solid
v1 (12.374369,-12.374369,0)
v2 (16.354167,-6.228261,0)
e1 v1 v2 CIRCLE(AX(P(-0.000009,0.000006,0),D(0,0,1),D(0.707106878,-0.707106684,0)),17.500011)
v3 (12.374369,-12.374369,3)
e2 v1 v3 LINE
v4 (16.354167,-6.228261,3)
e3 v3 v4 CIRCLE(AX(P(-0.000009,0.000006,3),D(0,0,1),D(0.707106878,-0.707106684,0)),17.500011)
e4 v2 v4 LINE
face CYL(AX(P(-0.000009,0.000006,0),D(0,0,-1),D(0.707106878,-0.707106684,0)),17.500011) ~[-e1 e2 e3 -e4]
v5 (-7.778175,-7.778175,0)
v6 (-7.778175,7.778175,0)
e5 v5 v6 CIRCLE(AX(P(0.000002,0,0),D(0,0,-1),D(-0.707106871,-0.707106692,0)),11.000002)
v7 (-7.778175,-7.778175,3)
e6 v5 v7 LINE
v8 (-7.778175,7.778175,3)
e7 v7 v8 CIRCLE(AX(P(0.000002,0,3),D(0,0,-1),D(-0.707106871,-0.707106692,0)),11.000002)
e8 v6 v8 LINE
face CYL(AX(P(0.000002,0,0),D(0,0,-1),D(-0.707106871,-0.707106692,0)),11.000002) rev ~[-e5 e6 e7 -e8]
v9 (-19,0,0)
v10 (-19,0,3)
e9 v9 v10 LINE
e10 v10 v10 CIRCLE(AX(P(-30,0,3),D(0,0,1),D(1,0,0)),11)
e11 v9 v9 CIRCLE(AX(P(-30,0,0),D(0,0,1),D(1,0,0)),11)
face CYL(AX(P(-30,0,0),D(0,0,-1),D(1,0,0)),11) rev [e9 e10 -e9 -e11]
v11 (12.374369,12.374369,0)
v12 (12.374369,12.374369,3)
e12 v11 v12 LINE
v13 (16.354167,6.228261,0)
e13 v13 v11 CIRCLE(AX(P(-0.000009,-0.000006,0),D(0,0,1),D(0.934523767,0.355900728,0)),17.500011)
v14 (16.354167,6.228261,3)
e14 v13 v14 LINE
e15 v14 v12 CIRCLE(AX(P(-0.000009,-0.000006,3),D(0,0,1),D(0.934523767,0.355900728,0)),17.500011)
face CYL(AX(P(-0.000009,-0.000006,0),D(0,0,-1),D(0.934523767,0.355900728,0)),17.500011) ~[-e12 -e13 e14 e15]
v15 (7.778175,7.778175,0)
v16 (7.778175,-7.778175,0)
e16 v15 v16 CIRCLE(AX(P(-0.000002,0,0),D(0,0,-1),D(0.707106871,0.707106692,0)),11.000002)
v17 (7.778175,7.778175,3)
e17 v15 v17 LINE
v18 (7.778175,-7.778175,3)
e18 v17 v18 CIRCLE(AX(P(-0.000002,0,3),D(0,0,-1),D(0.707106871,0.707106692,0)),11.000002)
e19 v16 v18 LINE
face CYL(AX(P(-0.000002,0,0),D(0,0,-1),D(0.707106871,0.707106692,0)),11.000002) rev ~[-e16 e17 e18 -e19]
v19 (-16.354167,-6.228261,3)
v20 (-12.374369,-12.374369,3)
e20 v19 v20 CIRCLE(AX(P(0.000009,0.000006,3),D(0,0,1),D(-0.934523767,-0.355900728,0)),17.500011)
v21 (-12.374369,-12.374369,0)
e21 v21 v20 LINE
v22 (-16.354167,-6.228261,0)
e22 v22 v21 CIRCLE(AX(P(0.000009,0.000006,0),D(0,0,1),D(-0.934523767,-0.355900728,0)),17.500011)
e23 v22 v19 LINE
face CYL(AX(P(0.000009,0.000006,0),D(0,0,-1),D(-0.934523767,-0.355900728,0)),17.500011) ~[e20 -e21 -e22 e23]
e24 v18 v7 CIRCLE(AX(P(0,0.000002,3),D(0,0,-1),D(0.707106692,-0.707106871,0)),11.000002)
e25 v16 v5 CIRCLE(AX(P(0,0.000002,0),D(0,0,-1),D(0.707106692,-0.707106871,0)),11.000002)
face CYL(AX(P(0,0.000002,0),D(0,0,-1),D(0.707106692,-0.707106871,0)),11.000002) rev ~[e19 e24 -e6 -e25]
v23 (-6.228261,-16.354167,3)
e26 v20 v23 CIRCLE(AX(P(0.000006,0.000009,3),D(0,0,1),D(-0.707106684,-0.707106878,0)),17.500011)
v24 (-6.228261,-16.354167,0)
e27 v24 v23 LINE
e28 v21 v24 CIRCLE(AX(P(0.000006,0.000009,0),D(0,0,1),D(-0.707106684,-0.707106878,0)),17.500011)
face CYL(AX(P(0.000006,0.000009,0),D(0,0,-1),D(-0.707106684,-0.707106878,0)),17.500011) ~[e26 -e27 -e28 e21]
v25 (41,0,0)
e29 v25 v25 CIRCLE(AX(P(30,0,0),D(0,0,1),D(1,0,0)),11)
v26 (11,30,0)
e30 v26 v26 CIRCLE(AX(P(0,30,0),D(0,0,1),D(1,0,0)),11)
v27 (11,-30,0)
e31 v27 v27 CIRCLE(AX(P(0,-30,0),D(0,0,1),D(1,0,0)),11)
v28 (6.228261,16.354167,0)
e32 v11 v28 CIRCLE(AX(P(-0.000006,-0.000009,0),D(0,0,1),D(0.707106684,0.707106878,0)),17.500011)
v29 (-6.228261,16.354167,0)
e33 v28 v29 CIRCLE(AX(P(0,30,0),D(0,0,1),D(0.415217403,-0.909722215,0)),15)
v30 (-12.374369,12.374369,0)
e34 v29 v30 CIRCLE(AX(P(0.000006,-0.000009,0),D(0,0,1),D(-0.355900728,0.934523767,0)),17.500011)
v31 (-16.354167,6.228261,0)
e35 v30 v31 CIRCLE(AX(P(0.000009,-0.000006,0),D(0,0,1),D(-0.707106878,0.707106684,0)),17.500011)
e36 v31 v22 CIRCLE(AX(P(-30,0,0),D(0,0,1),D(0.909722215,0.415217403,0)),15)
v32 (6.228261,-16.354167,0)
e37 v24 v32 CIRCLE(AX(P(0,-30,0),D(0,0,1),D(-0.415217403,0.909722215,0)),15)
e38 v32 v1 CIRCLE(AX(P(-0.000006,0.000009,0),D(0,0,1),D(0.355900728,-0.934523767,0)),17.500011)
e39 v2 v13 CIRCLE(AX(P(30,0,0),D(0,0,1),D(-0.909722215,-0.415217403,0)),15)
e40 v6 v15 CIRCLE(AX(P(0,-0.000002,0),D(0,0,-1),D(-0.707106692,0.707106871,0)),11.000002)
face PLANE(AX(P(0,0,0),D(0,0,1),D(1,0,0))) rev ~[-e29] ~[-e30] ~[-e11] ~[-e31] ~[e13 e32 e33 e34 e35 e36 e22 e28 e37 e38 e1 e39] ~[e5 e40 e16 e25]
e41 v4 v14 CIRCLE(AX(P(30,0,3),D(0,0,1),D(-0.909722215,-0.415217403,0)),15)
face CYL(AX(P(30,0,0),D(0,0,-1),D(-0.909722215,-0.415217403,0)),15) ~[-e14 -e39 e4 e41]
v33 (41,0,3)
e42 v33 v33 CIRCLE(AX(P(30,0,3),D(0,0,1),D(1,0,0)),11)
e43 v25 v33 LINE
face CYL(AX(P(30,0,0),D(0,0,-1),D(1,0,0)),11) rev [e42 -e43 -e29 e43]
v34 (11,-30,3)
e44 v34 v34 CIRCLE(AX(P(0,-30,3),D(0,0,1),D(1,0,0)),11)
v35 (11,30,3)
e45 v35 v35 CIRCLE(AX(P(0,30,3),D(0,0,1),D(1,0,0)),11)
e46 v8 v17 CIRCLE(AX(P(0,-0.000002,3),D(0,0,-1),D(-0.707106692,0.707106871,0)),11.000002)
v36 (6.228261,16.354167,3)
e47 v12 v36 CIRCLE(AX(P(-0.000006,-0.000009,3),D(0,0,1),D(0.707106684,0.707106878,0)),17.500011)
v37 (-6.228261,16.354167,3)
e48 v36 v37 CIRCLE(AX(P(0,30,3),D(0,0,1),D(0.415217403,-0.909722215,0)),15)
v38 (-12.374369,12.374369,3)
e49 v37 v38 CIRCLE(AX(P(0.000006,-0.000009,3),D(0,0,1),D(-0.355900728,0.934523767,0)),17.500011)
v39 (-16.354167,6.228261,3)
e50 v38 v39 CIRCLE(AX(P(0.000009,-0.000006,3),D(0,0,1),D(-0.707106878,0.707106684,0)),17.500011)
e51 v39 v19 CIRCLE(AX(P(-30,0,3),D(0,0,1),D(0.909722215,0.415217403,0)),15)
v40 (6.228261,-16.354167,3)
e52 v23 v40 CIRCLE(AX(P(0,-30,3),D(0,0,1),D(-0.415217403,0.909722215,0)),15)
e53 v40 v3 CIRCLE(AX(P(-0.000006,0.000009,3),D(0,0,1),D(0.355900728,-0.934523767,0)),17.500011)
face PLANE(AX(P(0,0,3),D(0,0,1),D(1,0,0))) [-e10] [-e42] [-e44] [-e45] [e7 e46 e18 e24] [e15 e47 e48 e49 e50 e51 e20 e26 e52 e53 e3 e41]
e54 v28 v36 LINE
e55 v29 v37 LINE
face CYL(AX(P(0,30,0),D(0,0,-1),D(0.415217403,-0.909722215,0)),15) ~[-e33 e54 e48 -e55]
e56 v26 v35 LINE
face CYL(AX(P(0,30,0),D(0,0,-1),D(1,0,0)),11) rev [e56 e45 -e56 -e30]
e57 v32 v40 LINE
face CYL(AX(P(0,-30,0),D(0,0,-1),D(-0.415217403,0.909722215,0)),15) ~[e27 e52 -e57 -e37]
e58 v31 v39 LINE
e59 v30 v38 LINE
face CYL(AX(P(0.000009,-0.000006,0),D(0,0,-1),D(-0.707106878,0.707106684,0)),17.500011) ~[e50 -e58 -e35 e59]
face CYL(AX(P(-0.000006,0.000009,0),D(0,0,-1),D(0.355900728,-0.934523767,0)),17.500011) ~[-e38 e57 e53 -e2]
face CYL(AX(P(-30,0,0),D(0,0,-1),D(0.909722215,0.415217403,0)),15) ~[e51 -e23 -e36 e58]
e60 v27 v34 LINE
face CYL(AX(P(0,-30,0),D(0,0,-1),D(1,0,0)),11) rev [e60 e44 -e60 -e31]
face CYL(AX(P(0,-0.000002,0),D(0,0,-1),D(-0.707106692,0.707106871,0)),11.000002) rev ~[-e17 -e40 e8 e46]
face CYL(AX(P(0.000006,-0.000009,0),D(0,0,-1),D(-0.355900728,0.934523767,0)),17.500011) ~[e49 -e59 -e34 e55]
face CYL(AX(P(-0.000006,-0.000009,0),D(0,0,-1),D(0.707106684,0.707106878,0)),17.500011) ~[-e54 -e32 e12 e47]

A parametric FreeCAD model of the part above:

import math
import FreeCAD as App
import Part
import Sketcher

doc = App.newDocument("Part")
body = doc.addObject("PartDesign::Body", "Body")

sketch1 = body.newObject("Sketcher::SketchObject", "Sketch")
sketch1.AttachmentSupport = (doc.getObject("XY_Plane"), [""])
sketch1.MapMode = "FlatFace"
sketch1.addGeometry([
    Part.ArcOfCircle(Part.Circle(App.Vector(0, 30, 0), App.Vector(0, 0, 1), 15), math.radians(-65.466992), math.radians(245.466992)),
    Part.ArcOfCircle(Part.Circle(App.Vector(0.000006, -0.000009, 0), App.Vector(0, 0, 1), 17.500011), math.radians(110.848658), math.radians(134.999992)),
    Part.ArcOfCircle(Part.Circle(App.Vector(0.000009, -0.000006, 0), App.Vector(0, 0, 1), 17.500011), math.radians(135.000008), math.radians(159.151342)),
    Part.ArcOfCircle(Part.Circle(App.Vector(-30, 0, 0), App.Vector(0, 0, 1), 15), math.radians(24.533008), math.radians(335.466992)),
    Part.ArcOfCircle(Part.Circle(App.Vector(0.000009, 0.000006, 0), App.Vector(0, 0, 1), 17.500011), math.radians(-159.151342), math.radians(-135.000008)),
    Part.ArcOfCircle(Part.Circle(App.Vector(0.000006, 0.000009, 0), App.Vector(0, 0, 1), 17.500011), math.radians(-134.999992), math.radians(-110.848658)),
    Part.ArcOfCircle(Part.Circle(App.Vector(0, -30, 0), App.Vector(0, 0, 1), 15), math.radians(114.533008), math.radians(425.466992)),
    Part.ArcOfCircle(Part.Circle(App.Vector(-0.000006, 0.000009, 0), App.Vector(0, 0, 1), 17.500011), math.radians(-69.151342), math.radians(-45.000008)),
    Part.ArcOfCircle(Part.Circle(App.Vector(-0.000009, 0.000006, 0), App.Vector(0, 0, 1), 17.500011), math.radians(-44.999992), math.radians(-20.848658)),
    Part.ArcOfCircle(Part.Circle(App.Vector(30, 0, 0), App.Vector(0, 0, 1), 15), math.radians(-155.466992), math.radians(155.466992)),
    Part.ArcOfCircle(Part.Circle(App.Vector(-0.000009, -0.000006, 0), App.Vector(0, 0, 1), 17.500011), math.radians(20.848658), math.radians(44.999992)),
    Part.ArcOfCircle(Part.Circle(App.Vector(-0.000006, -0.000009, 0), App.Vector(0, 0, 1), 17.500011), math.radians(45.000008), math.radians(69.151342)),
    Part.Circle(App.Vector(0, -30, 0), App.Vector(0, 0, 1), 11),
    Part.Circle(App.Vector(-30, 0, 0), App.Vector(0, 0, 1), 11),
    Part.ArcOfCircle(Part.Circle(App.Vector(0.000002, 0, 0), App.Vector(0, 0, 1), 11.000002), math.radians(135.000007), math.radians(224.999993)),
    Part.ArcOfCircle(Part.Circle(App.Vector(0, -0.000002, 0), App.Vector(0, 0, 1), 11.000002), math.radians(45.000007), math.radians(134.999993)),
    Part.ArcOfCircle(Part.Circle(App.Vector(-0.000002, 0, 0), App.Vector(0, 0, 1), 11.000002), math.radians(-44.999993), math.radians(44.999993)),
    Part.ArcOfCircle(Part.Circle(App.Vector(0, 0.000002, 0), App.Vector(0, 0, 1), 11.000002), math.radians(-134.999993), math.radians(-45.000007)),
    Part.Circle(App.Vector(30, 0, 0), App.Vector(0, 0, 1), 11),
    Part.Circle(App.Vector(0, 30, 0), App.Vector(0, 0, 1), 11),
], False)
sketch1.addConstraint([
    Sketcher.Constraint("Coincident", 0, 2, 1, 1),
    Sketcher.Constraint("Tangent", 1, 2, 2, 1),
    Sketcher.Constraint("Coincident", 2, 2, 3, 1),
    Sketcher.Constraint("Coincident", 3, 2, 4, 1),
    Sketcher.Constraint("Tangent", 4, 2, 5, 1),
    Sketcher.Constraint("Coincident", 5, 2, 6, 1),
    Sketcher.Constraint("Coincident", 6, 2, 7, 1),
    Sketcher.Constraint("Tangent", 7, 2, 8, 1),
    Sketcher.Constraint("Coincident", 8, 2, 9, 1),
    Sketcher.Constraint("Coincident", 9, 2, 10, 1),
    Sketcher.Constraint("Tangent", 10, 2, 11, 1),
    Sketcher.Constraint("Coincident", 11, 2, 0, 1),
    Sketcher.Constraint("Tangent", 14, 1, 15, 2),
    Sketcher.Constraint("Tangent", 15, 1, 16, 2),
    Sketcher.Constraint("Tangent", 16, 1, 17, 2),
    Sketcher.Constraint("Tangent", 17, 1, 14, 2),
    Sketcher.Constraint("Coincident", 14, 3, -1, 1),
    Sketcher.Constraint("Coincident", 12, 3, 6, 3),
    Sketcher.Constraint("Coincident", 13, 3, 3, 3),
    Sketcher.Constraint("Coincident", 14, 3, 1, 3),
    Sketcher.Constraint("Coincident", 16, 3, 7, 3),
    Sketcher.Constraint("Coincident", 17, 3, 4, 3),
    Sketcher.Constraint("Coincident", 18, 3, 9, 3),
    Sketcher.Constraint("Coincident", 19, 3, 0, 3),
    Sketcher.Constraint("Equal", 1, 2),
    Sketcher.Constraint("Equal", 0, 3),
    Sketcher.Constraint("Equal", 2, 4),
    Sketcher.Constraint("Equal", 4, 5),
    Sketcher.Constraint("Equal", 3, 6),
    Sketcher.Constraint("Equal", 5, 7),
    Sketcher.Constraint("Equal", 7, 8),
    Sketcher.Constraint("Equal", 6, 9),
    Sketcher.Constraint("Equal", 8, 10),
    Sketcher.Constraint("Equal", 10, 11),
    Sketcher.Constraint("Equal", 12, 13),
    Sketcher.Constraint("Equal", 13, 14),
    Sketcher.Constraint("Equal", 14, 15),
    Sketcher.Constraint("Equal", 17, 18),
    Sketcher.Constraint("Equal", 18, 19),
    Sketcher.Constraint("Symmetric", 0, 3, 6, 3, -1, 1),
    Sketcher.Constraint("Symmetric", 3, 3, 9, 3, -1, 1),
    Sketcher.Constraint("Symmetric", 4, 3, 10, 3, -1, 1),
    Sketcher.Constraint("PointOnObject", 0, 3, -2),
    Sketcher.Constraint("PointOnObject", 3, 3, -1),
    Sketcher.Constraint("Horizontal", 4, 2, 7, 2),
    Sketcher.Constraint("Horizontal", 1, 2, 10, 2),
    Sketcher.Constraint("Horizontal", 14, 1, 15, 1),
    Sketcher.Constraint("Horizontal", 16, 1, 17, 1),
    Sketcher.Constraint("Vertical", 1, 2, 4, 2),
    Sketcher.Constraint("Vertical", 15, 1, 16, 1),
    Sketcher.Constraint("Diameter", 12, 22.0),
    Sketcher.Constraint("Radius", 0, 15.0),
    Sketcher.Constraint("DistanceY", -1, 1, 0, 3, 30.0),
    Sketcher.Constraint("DistanceX", 3, 3, -1, 1, 30.0),
    Sketcher.Constraint("Radius", 1, 17.500011),
    Sketcher.Constraint("DistanceX", 2, 2, 1, 2, 3.979798),
    Sketcher.Constraint("DistanceY", 14, 1, 0, 2, 8.575992),
])
pad1 = body.newObject("PartDesign::Pad", "Pad")
pad1.Profile = sketch1
pad1.Length = 3

doc.recompute()
